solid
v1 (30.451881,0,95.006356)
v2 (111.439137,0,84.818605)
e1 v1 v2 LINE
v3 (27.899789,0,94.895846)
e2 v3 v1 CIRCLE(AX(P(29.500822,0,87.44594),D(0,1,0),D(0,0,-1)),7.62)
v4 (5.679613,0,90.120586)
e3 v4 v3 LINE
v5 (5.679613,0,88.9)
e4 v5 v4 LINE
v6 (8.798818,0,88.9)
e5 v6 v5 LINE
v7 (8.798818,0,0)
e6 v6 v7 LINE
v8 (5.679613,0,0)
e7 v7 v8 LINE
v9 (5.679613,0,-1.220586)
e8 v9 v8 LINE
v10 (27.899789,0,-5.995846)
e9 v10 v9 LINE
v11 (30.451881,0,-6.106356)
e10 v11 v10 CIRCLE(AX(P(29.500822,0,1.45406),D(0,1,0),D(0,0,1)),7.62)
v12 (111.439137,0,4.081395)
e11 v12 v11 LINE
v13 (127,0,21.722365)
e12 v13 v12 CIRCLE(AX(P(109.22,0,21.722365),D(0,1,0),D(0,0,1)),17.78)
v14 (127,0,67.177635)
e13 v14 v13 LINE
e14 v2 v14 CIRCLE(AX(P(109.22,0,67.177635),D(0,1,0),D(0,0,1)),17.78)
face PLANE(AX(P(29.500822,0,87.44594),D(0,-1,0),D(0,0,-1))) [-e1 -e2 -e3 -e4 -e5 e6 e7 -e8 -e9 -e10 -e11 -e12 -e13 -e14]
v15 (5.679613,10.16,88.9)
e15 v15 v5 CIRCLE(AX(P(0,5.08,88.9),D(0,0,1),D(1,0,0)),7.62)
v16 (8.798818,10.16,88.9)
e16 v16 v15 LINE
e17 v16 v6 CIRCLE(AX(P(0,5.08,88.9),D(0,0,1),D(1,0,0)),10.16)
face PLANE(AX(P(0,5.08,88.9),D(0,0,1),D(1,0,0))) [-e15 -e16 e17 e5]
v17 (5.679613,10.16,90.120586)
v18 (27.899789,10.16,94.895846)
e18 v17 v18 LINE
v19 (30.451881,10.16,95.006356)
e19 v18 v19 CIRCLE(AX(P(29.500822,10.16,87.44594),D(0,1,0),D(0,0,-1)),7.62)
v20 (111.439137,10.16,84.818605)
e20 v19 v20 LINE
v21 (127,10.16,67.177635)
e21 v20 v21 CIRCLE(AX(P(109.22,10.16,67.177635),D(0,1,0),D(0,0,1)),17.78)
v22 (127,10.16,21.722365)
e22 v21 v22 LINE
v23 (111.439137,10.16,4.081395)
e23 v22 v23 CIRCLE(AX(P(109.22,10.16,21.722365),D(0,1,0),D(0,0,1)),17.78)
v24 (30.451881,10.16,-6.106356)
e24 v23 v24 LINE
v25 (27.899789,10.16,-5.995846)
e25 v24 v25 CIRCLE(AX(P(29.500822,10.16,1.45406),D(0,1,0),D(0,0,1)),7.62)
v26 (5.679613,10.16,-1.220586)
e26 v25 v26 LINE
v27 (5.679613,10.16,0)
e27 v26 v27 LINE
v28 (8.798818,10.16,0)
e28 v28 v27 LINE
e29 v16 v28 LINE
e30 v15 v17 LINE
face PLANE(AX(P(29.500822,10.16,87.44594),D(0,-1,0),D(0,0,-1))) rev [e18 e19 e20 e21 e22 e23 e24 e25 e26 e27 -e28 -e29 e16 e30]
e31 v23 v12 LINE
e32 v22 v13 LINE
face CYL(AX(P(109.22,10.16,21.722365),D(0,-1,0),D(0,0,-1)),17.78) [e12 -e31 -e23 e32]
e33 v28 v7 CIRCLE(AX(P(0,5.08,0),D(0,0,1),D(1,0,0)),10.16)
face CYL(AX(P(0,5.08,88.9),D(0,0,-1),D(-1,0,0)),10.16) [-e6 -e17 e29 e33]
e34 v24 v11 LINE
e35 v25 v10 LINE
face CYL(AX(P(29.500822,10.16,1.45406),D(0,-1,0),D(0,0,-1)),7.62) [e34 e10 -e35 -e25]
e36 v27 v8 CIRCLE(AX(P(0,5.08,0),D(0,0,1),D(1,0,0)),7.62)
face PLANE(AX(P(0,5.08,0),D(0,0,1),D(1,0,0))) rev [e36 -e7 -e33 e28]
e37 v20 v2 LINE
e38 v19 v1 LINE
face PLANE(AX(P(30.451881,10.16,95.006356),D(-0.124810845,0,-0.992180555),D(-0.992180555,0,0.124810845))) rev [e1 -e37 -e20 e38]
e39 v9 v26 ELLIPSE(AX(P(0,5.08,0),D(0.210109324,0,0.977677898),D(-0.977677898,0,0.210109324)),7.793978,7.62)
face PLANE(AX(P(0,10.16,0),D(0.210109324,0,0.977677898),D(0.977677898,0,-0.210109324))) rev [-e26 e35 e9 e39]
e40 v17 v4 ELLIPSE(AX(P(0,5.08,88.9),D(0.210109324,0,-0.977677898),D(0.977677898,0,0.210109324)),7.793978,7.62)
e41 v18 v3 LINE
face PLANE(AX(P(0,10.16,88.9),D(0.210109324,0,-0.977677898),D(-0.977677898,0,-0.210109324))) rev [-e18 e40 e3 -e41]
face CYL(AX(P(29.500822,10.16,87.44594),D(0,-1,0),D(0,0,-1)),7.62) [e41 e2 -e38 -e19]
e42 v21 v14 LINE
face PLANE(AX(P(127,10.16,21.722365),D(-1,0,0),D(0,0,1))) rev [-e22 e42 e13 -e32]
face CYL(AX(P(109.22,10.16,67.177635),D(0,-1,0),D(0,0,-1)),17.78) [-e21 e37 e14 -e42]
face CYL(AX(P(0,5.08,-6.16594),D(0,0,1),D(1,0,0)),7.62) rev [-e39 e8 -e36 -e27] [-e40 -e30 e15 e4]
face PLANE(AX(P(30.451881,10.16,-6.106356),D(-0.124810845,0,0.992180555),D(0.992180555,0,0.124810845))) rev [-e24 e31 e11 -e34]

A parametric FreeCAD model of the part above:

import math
import FreeCAD as App
import Part
import Sketcher
Q = App.Units.Quantity

doc = App.newDocument("Part")
body = doc.addObject("PartDesign::Body", "Body")

sketch1 = doc.addObject("Sketcher::SketchObject", "Sketch")
body.addObject(sketch1)
sketch1.AttachmentSupport = (doc.XZ_Plane, [""])
sketch1.MapMode = "FlatFace"
sketch1.addGeometry([
    Part.LineSegment(App.Vector(27.899789, -5.995846, 0), App.Vector(0, 0, 0)),
    Part.LineSegment(App.Vector(0, 0, 0), App.Vector(0, 88.9, 0)),
    Part.LineSegment(App.Vector(0, 88.9, 0), App.Vector(27.899789, 94.895846, 0)),
    Part.ArcOfCircle(Part.Circle(App.Vector(29.500822, 87.44594, 0), App.Vector(0, 0, 1), 7.62), math.radians(82.830168), math.radians(102.128759)),
    Part.LineSegment(App.Vector(30.451881, 95.006356, 0), App.Vector(111.439137, 84.818605, 0)),
    Part.ArcOfCircle(Part.Circle(App.Vector(109.22, 67.177635, 0), App.Vector(0, 0, 1), 17.78), math.radians(0), math.radians(82.830168)),
    Part.LineSegment(App.Vector(127, 67.177635, 0), App.Vector(127, 21.722365, 0)),
    Part.ArcOfCircle(Part.Circle(App.Vector(109.22, 21.722365, 0), App.Vector(0, 0, 1), 17.78), math.radians(-82.830168), math.radians(0)),
    Part.LineSegment(App.Vector(111.439137, 4.081395, 0), App.Vector(30.451881, -6.106356, 0)),
    Part.ArcOfCircle(Part.Circle(App.Vector(29.500822, 1.45406, 0), App.Vector(0, 0, 1), 7.62), math.radians(-102.128759), math.radians(-82.830168)),
], False)
sketch1.addConstraint([
    Sketcher.Constraint("Coincident", 0, 2, 1, 1),
    Sketcher.Constraint("Coincident", 1, 2, 2, 1),
    Sketcher.Constraint("Tangent", 2, 2, 3, 2),
    Sketcher.Constraint("Tangent", 3, 1, 4, 1),
    Sketcher.Constraint("Tangent", 4, 2, 5, 2),
    Sketcher.Constraint("Tangent", 5, 1, 6, 1),
    Sketcher.Constraint("Tangent", 6, 2, 7, 2),
    Sketcher.Constraint("Tangent", 7, 1, 8, 1),
    Sketcher.Constraint("Tangent", 8, 2, 9, 2),
    Sketcher.Constraint("Tangent", 9, 1, 0, 1),
    Sketcher.Constraint("Vertical", 1),
    Sketcher.Constraint("Vertical", 6),
    Sketcher.Constraint("Coincident", 0, 2, -1, 1),
    Sketcher.Constraint("Equal", 5, 7),
    Sketcher.Constraint("Equal", 3, 9),
    Sketcher.Constraint("Vertical", 3, 3, 9, 3),
    Sketcher.Constraint("Vertical", 4, 2, 7, 1),
    Sketcher.Constraint("Vertical", 2, 2, 9, 1),
    Sketcher.Constraint("Radius", 3, Q("0.3 in")),
    Sketcher.Constraint("Radius", 5, Q("0.7 in")),
    Sketcher.Constraint("DistanceY", 1, 1, 1, 2, Q("3.5 in")),
    Sketcher.Constraint("DistanceX", -1, 1, 5, 1, Q("5 in")),
    Sketcher.Constraint("DistanceY", 6, 2, 6, 1, 45.45527),
    Sketcher.Constraint("Distance", 0, 28.53679),
    Sketcher.Constraint("DistanceX", -1, 1, 3, 3, 29.500822),
])
pad1 = doc.addObject("PartDesign::Pad", "Pad")
body.addObject(pad1)
pad1.Profile = sketch1
pad1.Length = Q("0.4 in")
pad1.Reversed = True

sketch2 = doc.addObject("Sketcher::SketchObject", "Sketch001")
body.addObject(sketch2)
sketch2.AttachmentSupport = (doc.XY_Plane, [""])
sketch2.MapMode = "FlatFace"
sketch2.addGeometry(Part.Circle(App.Vector(0, 5.08, 0), App.Vector(0, 0, 1), 10.16), False)
sketch2.addConstraint([
    Sketcher.Constraint("PointOnObject", 0, 3, -2),
    Sketcher.Constraint("Diameter", 0, Q("0.8 in")),
    Sketcher.Constraint("DistanceY", -1, 1, 0, 3, Q("0.2 in")),
])
pad2 = doc.addObject("PartDesign::Pad", "Pad001")
body.addObject(pad2)
pad2.Profile = sketch2
pad2.Length = Q("3.5 in")

sketch3 = doc.addObject("Sketcher::SketchObject", "Sketch002")
body.addObject(sketch3)
sketch3.AttachmentSupport = (doc.XY_Plane, [""])
sketch3.MapMode = "FlatFace"
sketch3.addGeometry(Part.Circle(App.Vector(0, 5.08, 0), App.Vector(0, 0, 1), 7.62), False)
sketch3.addConstraint([
    Sketcher.Constraint("PointOnObject", 0, 3, -2),
    Sketcher.Constraint("Diameter", 0, Q("0.6 in")),
    Sketcher.Constraint("DistanceY", -1, 1, 0, 3, Q("0.2 in")),
])
pocket1 = doc.addObject("PartDesign::Pocket", "Pocket")
body.addObject(pocket1)
pocket1.Profile = sketch3
pocket1.Type = "ThroughAll"
pocket1.Midplane = True

doc.recompute()
